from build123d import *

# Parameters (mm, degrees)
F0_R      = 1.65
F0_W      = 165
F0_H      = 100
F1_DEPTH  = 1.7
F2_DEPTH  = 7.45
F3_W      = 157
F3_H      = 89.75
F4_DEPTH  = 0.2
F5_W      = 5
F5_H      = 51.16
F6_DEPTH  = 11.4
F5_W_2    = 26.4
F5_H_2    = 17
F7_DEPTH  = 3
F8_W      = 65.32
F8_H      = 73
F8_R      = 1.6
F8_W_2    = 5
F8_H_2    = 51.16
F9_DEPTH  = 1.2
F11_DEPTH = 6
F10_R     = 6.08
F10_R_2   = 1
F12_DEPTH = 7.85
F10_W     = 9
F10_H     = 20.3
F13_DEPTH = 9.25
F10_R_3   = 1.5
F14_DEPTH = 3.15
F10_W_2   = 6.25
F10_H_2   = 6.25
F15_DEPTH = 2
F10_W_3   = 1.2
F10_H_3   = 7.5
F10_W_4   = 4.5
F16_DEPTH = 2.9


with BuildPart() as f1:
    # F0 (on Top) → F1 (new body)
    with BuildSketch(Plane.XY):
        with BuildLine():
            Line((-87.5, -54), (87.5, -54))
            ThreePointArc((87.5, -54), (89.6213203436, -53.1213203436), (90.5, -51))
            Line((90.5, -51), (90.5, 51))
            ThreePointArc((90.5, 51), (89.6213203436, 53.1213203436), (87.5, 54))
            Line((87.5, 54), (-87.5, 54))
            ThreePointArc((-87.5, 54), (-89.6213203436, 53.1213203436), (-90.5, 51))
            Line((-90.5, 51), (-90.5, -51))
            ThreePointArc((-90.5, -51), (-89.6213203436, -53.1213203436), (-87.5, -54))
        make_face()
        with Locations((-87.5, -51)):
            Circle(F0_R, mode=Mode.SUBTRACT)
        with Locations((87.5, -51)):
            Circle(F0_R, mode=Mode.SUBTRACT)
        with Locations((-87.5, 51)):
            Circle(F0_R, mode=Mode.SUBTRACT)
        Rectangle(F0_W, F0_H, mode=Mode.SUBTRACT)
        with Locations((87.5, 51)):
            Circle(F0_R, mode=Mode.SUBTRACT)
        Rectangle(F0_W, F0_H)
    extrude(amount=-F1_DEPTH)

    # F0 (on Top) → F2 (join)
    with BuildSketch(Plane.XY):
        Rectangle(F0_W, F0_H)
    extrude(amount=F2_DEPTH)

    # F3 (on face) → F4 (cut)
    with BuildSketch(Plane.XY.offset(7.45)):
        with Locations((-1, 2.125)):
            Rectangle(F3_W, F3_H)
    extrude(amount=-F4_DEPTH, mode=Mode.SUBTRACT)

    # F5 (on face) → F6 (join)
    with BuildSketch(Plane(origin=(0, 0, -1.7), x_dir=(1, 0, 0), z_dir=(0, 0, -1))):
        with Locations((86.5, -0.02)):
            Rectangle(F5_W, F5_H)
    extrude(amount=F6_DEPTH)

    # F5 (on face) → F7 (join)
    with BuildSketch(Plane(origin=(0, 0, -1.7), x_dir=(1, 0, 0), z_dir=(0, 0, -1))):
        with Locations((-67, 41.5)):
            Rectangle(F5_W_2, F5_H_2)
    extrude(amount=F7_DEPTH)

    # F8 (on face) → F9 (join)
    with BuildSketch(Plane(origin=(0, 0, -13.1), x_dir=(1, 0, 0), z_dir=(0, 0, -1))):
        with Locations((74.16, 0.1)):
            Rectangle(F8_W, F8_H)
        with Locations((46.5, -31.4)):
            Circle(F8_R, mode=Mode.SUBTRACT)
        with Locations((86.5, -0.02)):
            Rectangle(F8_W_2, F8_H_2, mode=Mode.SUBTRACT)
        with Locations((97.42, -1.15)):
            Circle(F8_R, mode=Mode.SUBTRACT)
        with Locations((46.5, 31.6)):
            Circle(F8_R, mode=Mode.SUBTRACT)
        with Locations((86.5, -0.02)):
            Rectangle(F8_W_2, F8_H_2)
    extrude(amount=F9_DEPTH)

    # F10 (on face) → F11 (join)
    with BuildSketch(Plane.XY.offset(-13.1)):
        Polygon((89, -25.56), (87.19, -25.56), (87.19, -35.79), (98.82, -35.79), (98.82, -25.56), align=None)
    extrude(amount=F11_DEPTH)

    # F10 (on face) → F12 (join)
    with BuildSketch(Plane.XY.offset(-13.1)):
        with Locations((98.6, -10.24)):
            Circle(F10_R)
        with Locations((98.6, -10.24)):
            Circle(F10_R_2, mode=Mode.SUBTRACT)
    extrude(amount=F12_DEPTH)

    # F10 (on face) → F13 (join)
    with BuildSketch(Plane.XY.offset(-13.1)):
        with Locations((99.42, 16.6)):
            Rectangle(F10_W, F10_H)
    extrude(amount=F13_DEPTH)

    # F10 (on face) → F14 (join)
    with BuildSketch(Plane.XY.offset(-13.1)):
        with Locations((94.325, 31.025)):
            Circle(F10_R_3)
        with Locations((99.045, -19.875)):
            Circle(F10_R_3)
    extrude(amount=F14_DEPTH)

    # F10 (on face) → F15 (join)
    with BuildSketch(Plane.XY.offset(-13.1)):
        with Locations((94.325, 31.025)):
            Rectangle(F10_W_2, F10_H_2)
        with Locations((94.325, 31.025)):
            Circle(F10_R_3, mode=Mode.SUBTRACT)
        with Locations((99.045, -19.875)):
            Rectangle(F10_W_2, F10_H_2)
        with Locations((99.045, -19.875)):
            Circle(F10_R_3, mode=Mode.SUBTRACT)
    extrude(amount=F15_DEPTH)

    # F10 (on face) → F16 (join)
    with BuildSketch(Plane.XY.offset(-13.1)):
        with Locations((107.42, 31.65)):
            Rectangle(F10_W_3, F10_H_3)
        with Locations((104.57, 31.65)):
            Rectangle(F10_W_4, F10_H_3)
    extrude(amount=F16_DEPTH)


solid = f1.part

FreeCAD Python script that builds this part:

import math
import FreeCAD as App
import Part
import Sketcher

V = App.Vector
Q = App.Units.Quantity


def add_polygon(sketch, points):
    """Adds a closed chain of lines whose ends are joined by coincident constraints."""
    first, n = sketch.GeometryCount, len(points)
    for a, b in zip(points, points[1:] + points[:1]):
        sketch.addGeometry(Part.LineSegment(App.Vector(*a, 0), App.Vector(*b, 0)), False)
    for i in range(n):
        sketch.addConstraint(Sketcher.Constraint("Coincident", first + i, 2, first + (i + 1) % n, 1))

doc = App.newDocument("Part")
body = doc.addObject("PartDesign::Body", "Body")

# Sketch on XY plane
sketch1 = doc.addObject("Sketcher::SketchObject", "Sketch")
body.addObject(sketch1)
sketch1.AttachmentSupport = (doc.XY_Plane, [""])
sketch1.MapMode = "FlatFace"
sketch1.addGeometry([
    Part.LineSegment(V(-87.5, -54, 0), V(87.5, -54, 0)),  # 0
    Part.ArcOfCircle(Part.Circle(V(87.5, -51, 0), V(0, 0, 1), 3), math.radians(-90), math.radians(0)),  # 1
    Part.LineSegment(V(90.5, -51, 0), V(90.5, 51, 0)),  # 2
    Part.ArcOfCircle(Part.Circle(V(87.5, 51, 0), V(0, 0, 1), 3), math.radians(0), math.radians(90)),  # 3
    Part.LineSegment(V(87.5, 54, 0), V(-87.5, 54, 0)),  # 4
    Part.ArcOfCircle(Part.Circle(V(-87.5, 51, 0), V(0, 0, 1), 3), math.radians(90), math.radians(180)),  # 5
    Part.LineSegment(V(-90.5, 51, 0), V(-90.5, -51, 0)),  # 6
    Part.ArcOfCircle(Part.Circle(V(-87.5, -51, 0), V(0, 0, 1), 3), math.radians(180), math.radians(270)),  # 7
    Part.Circle(V(-87.5, -51, 0), V(0, 0, 1), 1.6),  # 8
    Part.Circle(V(87.5, -51, 0), V(0, 0, 1), 1.6),  # 9
    Part.Circle(V(-87.5, 51, 0), V(0, 0, 1), 1.6),  # 10
    Part.Circle(V(87.5, 51, 0), V(0, 0, 1), 1.6),  # 11
], False)
sketch1.addConstraint([
    Sketcher.Constraint("Tangent", 0, 2, 1, 1),
    Sketcher.Constraint("Tangent", 1, 2, 2, 1),
    Sketcher.Constraint("Tangent", 2, 2, 3, 1),
    Sketcher.Constraint("Tangent", 3, 2, 4, 1),
    Sketcher.Constraint("Tangent", 4, 2, 5, 1),
    Sketcher.Constraint("Tangent", 5, 2, 6, 1),
    Sketcher.Constraint("Tangent", 6, 2, 7, 1),
    Sketcher.Constraint("Tangent", 7, 2, 0, 1),
    Sketcher.Constraint("Horizontal", 0),
    Sketcher.Constraint("Vertical", 2),
    Sketcher.Constraint("Horizontal", 4),
    Sketcher.Constraint("Vertical", 6),
    Sketcher.Constraint("Coincident", 8, 3, 7, 3),
    Sketcher.Constraint("Coincident", 9, 3, 1, 3),
    Sketcher.Constraint("Coincident", 10, 3, 5, 3),
    Sketcher.Constraint("Coincident", 11, 3, 3, 3),
    Sketcher.Constraint("Equal", 1, 3),
    Sketcher.Constraint("Equal", 3, 5),
    Sketcher.Constraint("Equal", 5, 7),
    Sketcher.Constraint("Equal", 8, 9),
    Sketcher.Constraint("Equal", 9, 10),
    Sketcher.Constraint("Equal", 10, 11),
    Sketcher.Constraint("Symmetric", 1, 3, 5, 3, -1, 1),
    Sketcher.Constraint("Radius", 1, Q("3 mm")),
    Sketcher.Constraint("Diameter", 8, Q("3.3 mm")),
    Sketcher.Constraint("DistanceX", 0, 1, 0, 2, Q("175 mm")),
    Sketcher.Constraint("DistanceY", 2, 1, 2, 2, Q("102 mm")),
])
pad1 = doc.addObject("PartDesign::Pad", "Pad")
body.addObject(pad1)
pad1.Profile = sketch1
pad1.Length = 1.7
pad1.Reversed = True

# Sketch on XY plane
sketch2 = doc.addObject("Sketcher::SketchObject", "Sketch001")
body.addObject(sketch2)
sketch2.AttachmentSupport = (doc.XY_Plane, [""])
sketch2.MapMode = "FlatFace"
add_polygon(sketch2, [(-82, 50), (-82, -50), (82, -50), (82, 50)])  # lines 0-3
sketch2.addConstraint([
    Sketcher.Constraint("Vertical", 0),
    Sketcher.Constraint("Horizontal", 1),
    Sketcher.Constraint("Vertical", 2),
    Sketcher.Constraint("Horizontal", 3),
    Sketcher.Constraint("Symmetric", 0, 2, 2, 2, -1, 1),
    Sketcher.Constraint("DistanceX", 1, 1, 1, 2, Q("165 mm")),
    Sketcher.Constraint("DistanceY", 0, 2, 0, 1, Q("100 mm")),
])
pad2 = doc.addObject("PartDesign::Pad", "Pad001")
body.addObject(pad2)
pad2.Profile = sketch2
pad2.Length = 7.45

# Sketch on XY plane
sketch3 = doc.addObject("Sketcher::SketchObject", "Sketch002")
body.addObject(sketch3)
sketch3.AttachmentSupport = (doc.XY_Plane, [""])
sketch3.MapMode = "FlatFace"
sketch3.AttachmentOffset = App.Placement(V(0, 0, 7.45), App.Rotation())
add_polygon(sketch3, [(-80, 47), (-80, -43), (78, -43), (78, 47)])  # lines 0-3
sketch3.addConstraint([
    Sketcher.Constraint("Vertical", 0),
    Sketcher.Constraint("Horizontal", 1),
    Sketcher.Constraint("Vertical", 2),
    Sketcher.Constraint("Horizontal", 3),
    Sketcher.Constraint("DistanceX", 1, 1, 1, 2, Q("157 mm")),
    Sketcher.Constraint("DistanceY", -1, 1, 2, 2, Q("47 mm")),
    Sketcher.Constraint("DistanceY", 0, 2, 0, 1, Q("89.75 mm")),
    Sketcher.Constraint("DistanceX", 0, 2, -1, 1, Q("79.5 mm")),
])
pocket1 = doc.addObject("PartDesign::Pocket", "Pocket")
body.addObject(pocket1)
pocket1.Profile = sketch3
pocket1.Length = 0.2

# Sketch on XY plane
sketch4 = doc.addObject("Sketcher::SketchObject", "Sketch003")
body.addObject(sketch4)
sketch4.AttachmentSupport = (doc.XY_Plane, [""])
sketch4.MapMode = "FlatFace"
sketch4.AttachmentOffset = App.Placement(V(0, 0, -1.7), App.Rotation())
add_polygon(sketch4, [(84, -26), (84, 26), (89, 26), (89, -26)])  # lines 0-3
sketch4.addConstraint([
    Sketcher.Constraint("Vertical", 0),
    Sketcher.Constraint("Horizontal", 1),
    Sketcher.Constraint("Vertical", 2),
    Sketcher.Constraint("Horizontal", 3),
    Sketcher.Constraint("DistanceX", 1, 1, 1, 2, Q("5 mm")),
    Sketcher.Constraint("DistanceX", -1, 1, 0, 2, Q("84 mm")),
    Sketcher.Constraint("DistanceY", 0, 1, 0, 2, Q("51.16 mm")),
    Sketcher.Constraint("DistanceY", -1, 1, 0, 2, Q("25.6 mm")),
])
pad3 = doc.addObject("PartDesign::Pad", "Pad002")
body.addObject(pad3)
pad3.Profile = sketch4
pad3.Length = 11.4
pad3.Reversed = True

# Sketch on XY plane
sketch5 = doc.addObject("Sketcher::SketchObject", "Sketch004")
body.addObject(sketch5)
sketch5.AttachmentSupport = (doc.XY_Plane, [""])
sketch5.MapMode = "FlatFace"
sketch5.AttachmentOffset = App.Placement(V(0, 0, -1.7), App.Rotation())
add_polygon(sketch5, [(-80, -50), (-80, -33), (-54, -33), (-54, -50)])  # lines 0-3
sketch5.addConstraint([
    Sketcher.Constraint("Vertical", 0),
    Sketcher.Constraint("Horizontal", 1),
    Sketcher.Constraint("Vertical", 2),
    Sketcher.Constraint("Horizontal", 3),
    Sketcher.Constraint("DistanceY", 0, 1, 0, 2, Q("17 mm")),
    Sketcher.Constraint("DistanceX", 1, 1, 1, 2, Q("26.4 mm")),
    Sketcher.Constraint("DistanceY", 0, 2, -1, 1, Q("33 mm")),
    Sketcher.Constraint("DistanceX", 0, 2, -1, 1, Q("80.2 mm")),
])
pad4 = doc.addObject("PartDesign::Pad", "Pad003")
body.addObject(pad4)
pad4.Profile = sketch5
pad4.Length = 3
pad4.Reversed = True

# Sketch on XY plane
sketch6 = doc.addObject("Sketcher::SketchObject", "Sketch005")
body.addObject(sketch6)
sketch6.AttachmentSupport = (doc.XY_Plane, [""])
sketch6.MapMode = "FlatFace"
sketch6.AttachmentOffset = App.Placement(V(0, 0, -13.1), App.Rotation())
add_polygon(sketch6, [(41.5, -36.6), (41.5, 36.4), (106.8, 36.4), (106.8, -36.6)])  # lines 0-3
sketch6.addGeometry(Part.Circle(V(46.5, 31.4, 0), V(0, 0, 1), 1.6), False)  # 4
sketch6.addGeometry(Part.Circle(V(97.4, 1.1, 0), V(0, 0, 1), 1.6), False)  # 5
sketch6.addGeometry(Part.Circle(V(46.5, -31.6, 0), V(0, 0, 1), 1.6), False)  # 6
sketch6.addConstraint([
    Sketcher.Constraint("Vertical", 0),
    Sketcher.Constraint("Horizontal", 1),
    Sketcher.Constraint("Vertical", 2),
    Sketcher.Constraint("Horizontal", 3),
    Sketcher.Constraint("Equal", 4, 5),
    Sketcher.Constraint("Equal", 5, 6),
    Sketcher.Constraint("Vertical", 4, 3, 6, 3),
    Sketcher.Constraint("Diameter", 4, Q("3.2 mm")),
    Sketcher.Constraint("DistanceY", 0, 1, 0, 2, Q("73 mm")),
    Sketcher.Constraint("DistanceY", 6, 3, 4, 3, Q("63 mm")),
    Sketcher.Constraint("DistanceX", 0, 2, 4, 3, Q("5 mm")),
    Sketcher.Constraint("DistanceY", 4, 3, 0, 2, Q("5 mm")),
    Sketcher.Constraint("DistanceX", 1, 1, 1, 2, Q("65.32 mm")),
    Sketcher.Constraint("DistanceX", -1, 1, 4, 3, Q("46.5 mm")),
    Sketcher.Constraint("DistanceY", -1, 1, 4, 3, Q("31.4 mm")),
    Sketcher.Constraint("DistanceX", 5, 3, 1, 2, Q("9.4 mm")),
    Sketcher.Constraint("DistanceY", -1, 1, 5, 3, Q("1.15 mm")),
])
pad5 = doc.addObject("PartDesign::Pad", "Pad004")
body.addObject(pad5)
pad5.Profile = sketch6
pad5.Length = 1.2
pad5.Reversed = True

# Sketch on XY plane
sketch7 = doc.addObject("Sketcher::SketchObject", "Sketch006")
body.addObject(sketch7)
sketch7.AttachmentSupport = (doc.XY_Plane, [""])
sketch7.MapMode = "FlatFace"
sketch7.AttachmentOffset = App.Placement(V(0, 0, -13.1), App.Rotation())
add_polygon(sketch7, [(87, -26), (87, -36), (99, -36), (99, -26)])  # lines 0-3
sketch7.addConstraint([
    Sketcher.Constraint("Vertical", 0),
    Sketcher.Constraint("Horizontal", 1),
    Sketcher.Constraint("Vertical", 2),
    Sketcher.Constraint("Horizontal", 3),
    Sketcher.Constraint("DistanceX", 1, 1, 1, 2, Q("11.63 mm")),
    Sketcher.Constraint("DistanceY", 0, 2, 0, 1, Q("10.23 mm")),
    Sketcher.Constraint("DistanceX", -1, 1, 0, 2, Q("87.19 mm")),
    Sketcher.Constraint("DistanceY", 0, 2, -1, 1, Q("35.79 mm")),
])
pad6 = doc.addObject("PartDesign::Pad", "Pad005")
body.addObject(pad6)
pad6.Profile = sketch7
pad6.Length = 6

# Sketch on XY plane
sketch8 = doc.addObject("Sketcher::SketchObject", "Sketch007")
body.addObject(sketch8)
sketch8.AttachmentSupport = (doc.XY_Plane, [""])
sketch8.MapMode = "FlatFace"
sketch8.AttachmentOffset = App.Placement(V(0, 0, -13.1), App.Rotation())
sketch8.addGeometry([
    Part.Circle(V(98.6, -10.2, 0), V(0, 0, 1), 6.1),
    Part.Circle(V(98.6, -10.2, 0), V(0, 0, 1), 1),
], False)
sketch8.addConstraint([
    Sketcher.Constraint("Coincident", 1, 3, 0, 3),
    Sketcher.Constraint("Diameter", 1, Q("2 mm")),
    Sketcher.Constraint("Diameter", 0, Q("12.16 mm")),
    Sketcher.Constraint("DistanceX", -1, 1, 0, 3, Q("98.6 mm")),
    Sketcher.Constraint("DistanceY", 0, 3, -1, 1, Q("10.24 mm")),
])
pad7 = doc.addObject("PartDesign::Pad", "Pad006")
body.addObject(pad7)
pad7.Profile = sketch8
pad7.Length = 7.85

# Sketch on XY plane
sketch9 = doc.addObject("Sketcher::SketchObject", "Sketch008")
body.addObject(sketch9)
sketch9.AttachmentSupport = (doc.XY_Plane, [""])
sketch9.MapMode = "FlatFace"
sketch9.AttachmentOffset = App.Placement(V(0, 0, -13.1), App.Rotation())
add_polygon(sketch9, [(95, 27), (95, 6), (104, 6), (104, 27)])  # lines 0-3
sketch9.addConstraint([
    Sketcher.Constraint("Vertical", 0),
    Sketcher.Constraint("Horizontal", 1),
    Sketcher.Constraint("Vertical", 2),
    Sketcher.Constraint("Horizontal", 3),
    Sketcher.Constraint("DistanceX", 1, 1, 1, 2, Q("9 mm")),
    Sketcher.Constraint("DistanceY", 0, 2, 0, 1, Q("20.3 mm")),
    Sketcher.Constraint("DistanceX", -1, 1, 0, 2, Q("94.92 mm")),
    Sketcher.Constraint("DistanceY", -1, 1, 0, 2, Q("6.45 mm")),
])
pad8 = doc.addObject("PartDesign::Pad", "Pad007")
body.addObject(pad8)
pad8.Profile = sketch9
pad8.Length = 9.25

# Sketch on XY plane
sketch10 = doc.addObject("Sketcher::SketchObject", "Sketch009")
body.addObject(sketch10)
sketch10.AttachmentSupport = (doc.XY_Plane, [""])
sketch10.MapMode = "FlatFace"
sketch10.AttachmentOffset = App.Placement(V(0, 0, -13.1), App.Rotation())
sketch10.addGeometry([
    Part.Circle(V(94.3, 31, 0), V(0, 0, 1), 1.5),
    Part.Circle(V(99, -19.9, 0), V(0, 0, 1), 1.5),
], False)
sketch10.addConstraint([
    Sketcher.Constraint("Equal", 0, 1),
    Sketcher.Constraint("Diameter", 0, Q("3 mm")),
    Sketcher.Constraint("DistanceY", 1, 3, 0, 3, Q("50.9 mm")),
    Sketcher.Constraint("DistanceX", 0, 3, 1, 3, Q("4.72 mm")),
    Sketcher.Constraint("DistanceX", -1, 1, 0, 3, Q("94.325 mm")),
    Sketcher.Constraint("DistanceY", -1, 1, 0, 3, Q("31.025 mm")),
])
pad9 = doc.addObject("PartDesign::Pad", "Pad008")
body.addObject(pad9)
pad9.Profile = sketch10
pad9.Length = 3.15

# Sketch on XY plane
sketch11 = doc.addObject("Sketcher::SketchObject", "Sketch010")
body.addObject(sketch11)
sketch11.AttachmentSupport = (doc.XY_Plane, [""])
sketch11.MapMode = "FlatFace"
sketch11.AttachmentOffset = App.Placement(V(0, 0, -13.1), App.Rotation())
add_polygon(sketch11, [(91.2, 34.1), (91.2, 27.9), (97.5, 27.9), (97.5, 34.1)])  # lines 0-3
sketch11.addGeometry(Part.Circle(V(94.3, 31, 0), V(0, 0, 1), 1.5), False)  # 4
add_polygon(sketch11, [(95.9, -16.8), (95.9, -23), (102.2, -23), (102.2, -16.8)])  # lines 5-8
sketch11.addGeometry(Part.Circle(V(99, -19.9, 0), V(0, 0, 1), 1.5), False)  # 9
sketch11.addConstraint([
    Sketcher.Constraint("Vertical", 0),
    Sketcher.Constraint("Horizontal", 1),
    Sketcher.Constraint("Vertical", 2),
    Sketcher.Constraint("Horizontal", 3),
    Sketcher.Constraint("Vertical", 5),
    Sketcher.Constraint("Horizontal", 6),
    Sketcher.Constraint("Vertical", 7),
    Sketcher.Constraint("Horizontal", 8),
    Sketcher.Constraint("Equal", 4, 9),
    Sketcher.Constraint("Equal", 3, 6),
    Sketcher.Constraint("Equal", 8, 0),
    Sketcher.Constraint("Equal", 2, 5),
    Sketcher.Constraint("Diameter", 4, Q("3 mm")),
    Sketcher.Constraint("DistanceY", 5, 2, -1, 1, Q("23 mm")),
    Sketcher.Constraint("DistanceX", 1, 1, 1, 2, Q("6.25 mm")),
    Sketcher.Constraint("DistanceX", -1, 1, 0, 2, Q("91.2 mm")),
    Sketcher.Constraint("DistanceY", -1, 1, 0, 2, Q("27.9 mm")),
    Sketcher.Constraint("DistanceY", 9, 3, 4, 3, Q("50.9 mm")),
    Sketcher.Constraint("DistanceX", -1, 1, 5, 2, Q("95.92 mm")),
    Sketcher.Constraint("DistanceX", 4, 3, 9, 3, Q("4.72 mm")),
    Sketcher.Constraint("DistanceX", -1, 1, 4, 3, Q("94.325 mm")),
    Sketcher.Constraint("DistanceY", -1, 1, 4, 3, Q("31.025 mm")),
])
pad10 = doc.addObject("PartDesign::Pad", "Pad009")
body.addObject(pad10)
pad10.Profile = sketch11
pad10.Length = 2

# Sketch on XY plane
sketch12 = doc.addObject("Sketcher::SketchObject", "Sketch011")
body.addObject(sketch12)
sketch12.AttachmentSupport = (doc.XY_Plane, [""])
sketch12.MapMode = "FlatFace"
sketch12.AttachmentOffset = App.Placement(V(0, 0, -13.1), App.Rotation())
add_polygon(sketch12, [(108, 28), (108, 35), (102, 35), (102, 28)])  # lines 0-3
sketch12.addConstraint([
    Sketcher.Constraint("Vertical", 0),
    Sketcher.Constraint("Horizontal", 1),
    Sketcher.Constraint("Vertical", 2),
    Sketcher.Constraint("Horizontal", 3),
    Sketcher.Constraint("DistanceX", 1, 2, 1, 1, Q("5.7 mm")),
    Sketcher.Constraint("DistanceY", 0, 1, 0, 2, Q("7.5 mm")),
    Sketcher.Constraint("DistanceY", -1, 1, 0, 2, Q("35.4 mm")),
    Sketcher.Constraint("DistanceX", -1, 1, 0, 2, Q("108.02 mm")),
])
pad11 = doc.addObject("PartDesign::Pad", "Pad010")
body.addObject(pad11)
pad11.Profile = sketch12
pad11.Length = 2.9

doc.recompute()
